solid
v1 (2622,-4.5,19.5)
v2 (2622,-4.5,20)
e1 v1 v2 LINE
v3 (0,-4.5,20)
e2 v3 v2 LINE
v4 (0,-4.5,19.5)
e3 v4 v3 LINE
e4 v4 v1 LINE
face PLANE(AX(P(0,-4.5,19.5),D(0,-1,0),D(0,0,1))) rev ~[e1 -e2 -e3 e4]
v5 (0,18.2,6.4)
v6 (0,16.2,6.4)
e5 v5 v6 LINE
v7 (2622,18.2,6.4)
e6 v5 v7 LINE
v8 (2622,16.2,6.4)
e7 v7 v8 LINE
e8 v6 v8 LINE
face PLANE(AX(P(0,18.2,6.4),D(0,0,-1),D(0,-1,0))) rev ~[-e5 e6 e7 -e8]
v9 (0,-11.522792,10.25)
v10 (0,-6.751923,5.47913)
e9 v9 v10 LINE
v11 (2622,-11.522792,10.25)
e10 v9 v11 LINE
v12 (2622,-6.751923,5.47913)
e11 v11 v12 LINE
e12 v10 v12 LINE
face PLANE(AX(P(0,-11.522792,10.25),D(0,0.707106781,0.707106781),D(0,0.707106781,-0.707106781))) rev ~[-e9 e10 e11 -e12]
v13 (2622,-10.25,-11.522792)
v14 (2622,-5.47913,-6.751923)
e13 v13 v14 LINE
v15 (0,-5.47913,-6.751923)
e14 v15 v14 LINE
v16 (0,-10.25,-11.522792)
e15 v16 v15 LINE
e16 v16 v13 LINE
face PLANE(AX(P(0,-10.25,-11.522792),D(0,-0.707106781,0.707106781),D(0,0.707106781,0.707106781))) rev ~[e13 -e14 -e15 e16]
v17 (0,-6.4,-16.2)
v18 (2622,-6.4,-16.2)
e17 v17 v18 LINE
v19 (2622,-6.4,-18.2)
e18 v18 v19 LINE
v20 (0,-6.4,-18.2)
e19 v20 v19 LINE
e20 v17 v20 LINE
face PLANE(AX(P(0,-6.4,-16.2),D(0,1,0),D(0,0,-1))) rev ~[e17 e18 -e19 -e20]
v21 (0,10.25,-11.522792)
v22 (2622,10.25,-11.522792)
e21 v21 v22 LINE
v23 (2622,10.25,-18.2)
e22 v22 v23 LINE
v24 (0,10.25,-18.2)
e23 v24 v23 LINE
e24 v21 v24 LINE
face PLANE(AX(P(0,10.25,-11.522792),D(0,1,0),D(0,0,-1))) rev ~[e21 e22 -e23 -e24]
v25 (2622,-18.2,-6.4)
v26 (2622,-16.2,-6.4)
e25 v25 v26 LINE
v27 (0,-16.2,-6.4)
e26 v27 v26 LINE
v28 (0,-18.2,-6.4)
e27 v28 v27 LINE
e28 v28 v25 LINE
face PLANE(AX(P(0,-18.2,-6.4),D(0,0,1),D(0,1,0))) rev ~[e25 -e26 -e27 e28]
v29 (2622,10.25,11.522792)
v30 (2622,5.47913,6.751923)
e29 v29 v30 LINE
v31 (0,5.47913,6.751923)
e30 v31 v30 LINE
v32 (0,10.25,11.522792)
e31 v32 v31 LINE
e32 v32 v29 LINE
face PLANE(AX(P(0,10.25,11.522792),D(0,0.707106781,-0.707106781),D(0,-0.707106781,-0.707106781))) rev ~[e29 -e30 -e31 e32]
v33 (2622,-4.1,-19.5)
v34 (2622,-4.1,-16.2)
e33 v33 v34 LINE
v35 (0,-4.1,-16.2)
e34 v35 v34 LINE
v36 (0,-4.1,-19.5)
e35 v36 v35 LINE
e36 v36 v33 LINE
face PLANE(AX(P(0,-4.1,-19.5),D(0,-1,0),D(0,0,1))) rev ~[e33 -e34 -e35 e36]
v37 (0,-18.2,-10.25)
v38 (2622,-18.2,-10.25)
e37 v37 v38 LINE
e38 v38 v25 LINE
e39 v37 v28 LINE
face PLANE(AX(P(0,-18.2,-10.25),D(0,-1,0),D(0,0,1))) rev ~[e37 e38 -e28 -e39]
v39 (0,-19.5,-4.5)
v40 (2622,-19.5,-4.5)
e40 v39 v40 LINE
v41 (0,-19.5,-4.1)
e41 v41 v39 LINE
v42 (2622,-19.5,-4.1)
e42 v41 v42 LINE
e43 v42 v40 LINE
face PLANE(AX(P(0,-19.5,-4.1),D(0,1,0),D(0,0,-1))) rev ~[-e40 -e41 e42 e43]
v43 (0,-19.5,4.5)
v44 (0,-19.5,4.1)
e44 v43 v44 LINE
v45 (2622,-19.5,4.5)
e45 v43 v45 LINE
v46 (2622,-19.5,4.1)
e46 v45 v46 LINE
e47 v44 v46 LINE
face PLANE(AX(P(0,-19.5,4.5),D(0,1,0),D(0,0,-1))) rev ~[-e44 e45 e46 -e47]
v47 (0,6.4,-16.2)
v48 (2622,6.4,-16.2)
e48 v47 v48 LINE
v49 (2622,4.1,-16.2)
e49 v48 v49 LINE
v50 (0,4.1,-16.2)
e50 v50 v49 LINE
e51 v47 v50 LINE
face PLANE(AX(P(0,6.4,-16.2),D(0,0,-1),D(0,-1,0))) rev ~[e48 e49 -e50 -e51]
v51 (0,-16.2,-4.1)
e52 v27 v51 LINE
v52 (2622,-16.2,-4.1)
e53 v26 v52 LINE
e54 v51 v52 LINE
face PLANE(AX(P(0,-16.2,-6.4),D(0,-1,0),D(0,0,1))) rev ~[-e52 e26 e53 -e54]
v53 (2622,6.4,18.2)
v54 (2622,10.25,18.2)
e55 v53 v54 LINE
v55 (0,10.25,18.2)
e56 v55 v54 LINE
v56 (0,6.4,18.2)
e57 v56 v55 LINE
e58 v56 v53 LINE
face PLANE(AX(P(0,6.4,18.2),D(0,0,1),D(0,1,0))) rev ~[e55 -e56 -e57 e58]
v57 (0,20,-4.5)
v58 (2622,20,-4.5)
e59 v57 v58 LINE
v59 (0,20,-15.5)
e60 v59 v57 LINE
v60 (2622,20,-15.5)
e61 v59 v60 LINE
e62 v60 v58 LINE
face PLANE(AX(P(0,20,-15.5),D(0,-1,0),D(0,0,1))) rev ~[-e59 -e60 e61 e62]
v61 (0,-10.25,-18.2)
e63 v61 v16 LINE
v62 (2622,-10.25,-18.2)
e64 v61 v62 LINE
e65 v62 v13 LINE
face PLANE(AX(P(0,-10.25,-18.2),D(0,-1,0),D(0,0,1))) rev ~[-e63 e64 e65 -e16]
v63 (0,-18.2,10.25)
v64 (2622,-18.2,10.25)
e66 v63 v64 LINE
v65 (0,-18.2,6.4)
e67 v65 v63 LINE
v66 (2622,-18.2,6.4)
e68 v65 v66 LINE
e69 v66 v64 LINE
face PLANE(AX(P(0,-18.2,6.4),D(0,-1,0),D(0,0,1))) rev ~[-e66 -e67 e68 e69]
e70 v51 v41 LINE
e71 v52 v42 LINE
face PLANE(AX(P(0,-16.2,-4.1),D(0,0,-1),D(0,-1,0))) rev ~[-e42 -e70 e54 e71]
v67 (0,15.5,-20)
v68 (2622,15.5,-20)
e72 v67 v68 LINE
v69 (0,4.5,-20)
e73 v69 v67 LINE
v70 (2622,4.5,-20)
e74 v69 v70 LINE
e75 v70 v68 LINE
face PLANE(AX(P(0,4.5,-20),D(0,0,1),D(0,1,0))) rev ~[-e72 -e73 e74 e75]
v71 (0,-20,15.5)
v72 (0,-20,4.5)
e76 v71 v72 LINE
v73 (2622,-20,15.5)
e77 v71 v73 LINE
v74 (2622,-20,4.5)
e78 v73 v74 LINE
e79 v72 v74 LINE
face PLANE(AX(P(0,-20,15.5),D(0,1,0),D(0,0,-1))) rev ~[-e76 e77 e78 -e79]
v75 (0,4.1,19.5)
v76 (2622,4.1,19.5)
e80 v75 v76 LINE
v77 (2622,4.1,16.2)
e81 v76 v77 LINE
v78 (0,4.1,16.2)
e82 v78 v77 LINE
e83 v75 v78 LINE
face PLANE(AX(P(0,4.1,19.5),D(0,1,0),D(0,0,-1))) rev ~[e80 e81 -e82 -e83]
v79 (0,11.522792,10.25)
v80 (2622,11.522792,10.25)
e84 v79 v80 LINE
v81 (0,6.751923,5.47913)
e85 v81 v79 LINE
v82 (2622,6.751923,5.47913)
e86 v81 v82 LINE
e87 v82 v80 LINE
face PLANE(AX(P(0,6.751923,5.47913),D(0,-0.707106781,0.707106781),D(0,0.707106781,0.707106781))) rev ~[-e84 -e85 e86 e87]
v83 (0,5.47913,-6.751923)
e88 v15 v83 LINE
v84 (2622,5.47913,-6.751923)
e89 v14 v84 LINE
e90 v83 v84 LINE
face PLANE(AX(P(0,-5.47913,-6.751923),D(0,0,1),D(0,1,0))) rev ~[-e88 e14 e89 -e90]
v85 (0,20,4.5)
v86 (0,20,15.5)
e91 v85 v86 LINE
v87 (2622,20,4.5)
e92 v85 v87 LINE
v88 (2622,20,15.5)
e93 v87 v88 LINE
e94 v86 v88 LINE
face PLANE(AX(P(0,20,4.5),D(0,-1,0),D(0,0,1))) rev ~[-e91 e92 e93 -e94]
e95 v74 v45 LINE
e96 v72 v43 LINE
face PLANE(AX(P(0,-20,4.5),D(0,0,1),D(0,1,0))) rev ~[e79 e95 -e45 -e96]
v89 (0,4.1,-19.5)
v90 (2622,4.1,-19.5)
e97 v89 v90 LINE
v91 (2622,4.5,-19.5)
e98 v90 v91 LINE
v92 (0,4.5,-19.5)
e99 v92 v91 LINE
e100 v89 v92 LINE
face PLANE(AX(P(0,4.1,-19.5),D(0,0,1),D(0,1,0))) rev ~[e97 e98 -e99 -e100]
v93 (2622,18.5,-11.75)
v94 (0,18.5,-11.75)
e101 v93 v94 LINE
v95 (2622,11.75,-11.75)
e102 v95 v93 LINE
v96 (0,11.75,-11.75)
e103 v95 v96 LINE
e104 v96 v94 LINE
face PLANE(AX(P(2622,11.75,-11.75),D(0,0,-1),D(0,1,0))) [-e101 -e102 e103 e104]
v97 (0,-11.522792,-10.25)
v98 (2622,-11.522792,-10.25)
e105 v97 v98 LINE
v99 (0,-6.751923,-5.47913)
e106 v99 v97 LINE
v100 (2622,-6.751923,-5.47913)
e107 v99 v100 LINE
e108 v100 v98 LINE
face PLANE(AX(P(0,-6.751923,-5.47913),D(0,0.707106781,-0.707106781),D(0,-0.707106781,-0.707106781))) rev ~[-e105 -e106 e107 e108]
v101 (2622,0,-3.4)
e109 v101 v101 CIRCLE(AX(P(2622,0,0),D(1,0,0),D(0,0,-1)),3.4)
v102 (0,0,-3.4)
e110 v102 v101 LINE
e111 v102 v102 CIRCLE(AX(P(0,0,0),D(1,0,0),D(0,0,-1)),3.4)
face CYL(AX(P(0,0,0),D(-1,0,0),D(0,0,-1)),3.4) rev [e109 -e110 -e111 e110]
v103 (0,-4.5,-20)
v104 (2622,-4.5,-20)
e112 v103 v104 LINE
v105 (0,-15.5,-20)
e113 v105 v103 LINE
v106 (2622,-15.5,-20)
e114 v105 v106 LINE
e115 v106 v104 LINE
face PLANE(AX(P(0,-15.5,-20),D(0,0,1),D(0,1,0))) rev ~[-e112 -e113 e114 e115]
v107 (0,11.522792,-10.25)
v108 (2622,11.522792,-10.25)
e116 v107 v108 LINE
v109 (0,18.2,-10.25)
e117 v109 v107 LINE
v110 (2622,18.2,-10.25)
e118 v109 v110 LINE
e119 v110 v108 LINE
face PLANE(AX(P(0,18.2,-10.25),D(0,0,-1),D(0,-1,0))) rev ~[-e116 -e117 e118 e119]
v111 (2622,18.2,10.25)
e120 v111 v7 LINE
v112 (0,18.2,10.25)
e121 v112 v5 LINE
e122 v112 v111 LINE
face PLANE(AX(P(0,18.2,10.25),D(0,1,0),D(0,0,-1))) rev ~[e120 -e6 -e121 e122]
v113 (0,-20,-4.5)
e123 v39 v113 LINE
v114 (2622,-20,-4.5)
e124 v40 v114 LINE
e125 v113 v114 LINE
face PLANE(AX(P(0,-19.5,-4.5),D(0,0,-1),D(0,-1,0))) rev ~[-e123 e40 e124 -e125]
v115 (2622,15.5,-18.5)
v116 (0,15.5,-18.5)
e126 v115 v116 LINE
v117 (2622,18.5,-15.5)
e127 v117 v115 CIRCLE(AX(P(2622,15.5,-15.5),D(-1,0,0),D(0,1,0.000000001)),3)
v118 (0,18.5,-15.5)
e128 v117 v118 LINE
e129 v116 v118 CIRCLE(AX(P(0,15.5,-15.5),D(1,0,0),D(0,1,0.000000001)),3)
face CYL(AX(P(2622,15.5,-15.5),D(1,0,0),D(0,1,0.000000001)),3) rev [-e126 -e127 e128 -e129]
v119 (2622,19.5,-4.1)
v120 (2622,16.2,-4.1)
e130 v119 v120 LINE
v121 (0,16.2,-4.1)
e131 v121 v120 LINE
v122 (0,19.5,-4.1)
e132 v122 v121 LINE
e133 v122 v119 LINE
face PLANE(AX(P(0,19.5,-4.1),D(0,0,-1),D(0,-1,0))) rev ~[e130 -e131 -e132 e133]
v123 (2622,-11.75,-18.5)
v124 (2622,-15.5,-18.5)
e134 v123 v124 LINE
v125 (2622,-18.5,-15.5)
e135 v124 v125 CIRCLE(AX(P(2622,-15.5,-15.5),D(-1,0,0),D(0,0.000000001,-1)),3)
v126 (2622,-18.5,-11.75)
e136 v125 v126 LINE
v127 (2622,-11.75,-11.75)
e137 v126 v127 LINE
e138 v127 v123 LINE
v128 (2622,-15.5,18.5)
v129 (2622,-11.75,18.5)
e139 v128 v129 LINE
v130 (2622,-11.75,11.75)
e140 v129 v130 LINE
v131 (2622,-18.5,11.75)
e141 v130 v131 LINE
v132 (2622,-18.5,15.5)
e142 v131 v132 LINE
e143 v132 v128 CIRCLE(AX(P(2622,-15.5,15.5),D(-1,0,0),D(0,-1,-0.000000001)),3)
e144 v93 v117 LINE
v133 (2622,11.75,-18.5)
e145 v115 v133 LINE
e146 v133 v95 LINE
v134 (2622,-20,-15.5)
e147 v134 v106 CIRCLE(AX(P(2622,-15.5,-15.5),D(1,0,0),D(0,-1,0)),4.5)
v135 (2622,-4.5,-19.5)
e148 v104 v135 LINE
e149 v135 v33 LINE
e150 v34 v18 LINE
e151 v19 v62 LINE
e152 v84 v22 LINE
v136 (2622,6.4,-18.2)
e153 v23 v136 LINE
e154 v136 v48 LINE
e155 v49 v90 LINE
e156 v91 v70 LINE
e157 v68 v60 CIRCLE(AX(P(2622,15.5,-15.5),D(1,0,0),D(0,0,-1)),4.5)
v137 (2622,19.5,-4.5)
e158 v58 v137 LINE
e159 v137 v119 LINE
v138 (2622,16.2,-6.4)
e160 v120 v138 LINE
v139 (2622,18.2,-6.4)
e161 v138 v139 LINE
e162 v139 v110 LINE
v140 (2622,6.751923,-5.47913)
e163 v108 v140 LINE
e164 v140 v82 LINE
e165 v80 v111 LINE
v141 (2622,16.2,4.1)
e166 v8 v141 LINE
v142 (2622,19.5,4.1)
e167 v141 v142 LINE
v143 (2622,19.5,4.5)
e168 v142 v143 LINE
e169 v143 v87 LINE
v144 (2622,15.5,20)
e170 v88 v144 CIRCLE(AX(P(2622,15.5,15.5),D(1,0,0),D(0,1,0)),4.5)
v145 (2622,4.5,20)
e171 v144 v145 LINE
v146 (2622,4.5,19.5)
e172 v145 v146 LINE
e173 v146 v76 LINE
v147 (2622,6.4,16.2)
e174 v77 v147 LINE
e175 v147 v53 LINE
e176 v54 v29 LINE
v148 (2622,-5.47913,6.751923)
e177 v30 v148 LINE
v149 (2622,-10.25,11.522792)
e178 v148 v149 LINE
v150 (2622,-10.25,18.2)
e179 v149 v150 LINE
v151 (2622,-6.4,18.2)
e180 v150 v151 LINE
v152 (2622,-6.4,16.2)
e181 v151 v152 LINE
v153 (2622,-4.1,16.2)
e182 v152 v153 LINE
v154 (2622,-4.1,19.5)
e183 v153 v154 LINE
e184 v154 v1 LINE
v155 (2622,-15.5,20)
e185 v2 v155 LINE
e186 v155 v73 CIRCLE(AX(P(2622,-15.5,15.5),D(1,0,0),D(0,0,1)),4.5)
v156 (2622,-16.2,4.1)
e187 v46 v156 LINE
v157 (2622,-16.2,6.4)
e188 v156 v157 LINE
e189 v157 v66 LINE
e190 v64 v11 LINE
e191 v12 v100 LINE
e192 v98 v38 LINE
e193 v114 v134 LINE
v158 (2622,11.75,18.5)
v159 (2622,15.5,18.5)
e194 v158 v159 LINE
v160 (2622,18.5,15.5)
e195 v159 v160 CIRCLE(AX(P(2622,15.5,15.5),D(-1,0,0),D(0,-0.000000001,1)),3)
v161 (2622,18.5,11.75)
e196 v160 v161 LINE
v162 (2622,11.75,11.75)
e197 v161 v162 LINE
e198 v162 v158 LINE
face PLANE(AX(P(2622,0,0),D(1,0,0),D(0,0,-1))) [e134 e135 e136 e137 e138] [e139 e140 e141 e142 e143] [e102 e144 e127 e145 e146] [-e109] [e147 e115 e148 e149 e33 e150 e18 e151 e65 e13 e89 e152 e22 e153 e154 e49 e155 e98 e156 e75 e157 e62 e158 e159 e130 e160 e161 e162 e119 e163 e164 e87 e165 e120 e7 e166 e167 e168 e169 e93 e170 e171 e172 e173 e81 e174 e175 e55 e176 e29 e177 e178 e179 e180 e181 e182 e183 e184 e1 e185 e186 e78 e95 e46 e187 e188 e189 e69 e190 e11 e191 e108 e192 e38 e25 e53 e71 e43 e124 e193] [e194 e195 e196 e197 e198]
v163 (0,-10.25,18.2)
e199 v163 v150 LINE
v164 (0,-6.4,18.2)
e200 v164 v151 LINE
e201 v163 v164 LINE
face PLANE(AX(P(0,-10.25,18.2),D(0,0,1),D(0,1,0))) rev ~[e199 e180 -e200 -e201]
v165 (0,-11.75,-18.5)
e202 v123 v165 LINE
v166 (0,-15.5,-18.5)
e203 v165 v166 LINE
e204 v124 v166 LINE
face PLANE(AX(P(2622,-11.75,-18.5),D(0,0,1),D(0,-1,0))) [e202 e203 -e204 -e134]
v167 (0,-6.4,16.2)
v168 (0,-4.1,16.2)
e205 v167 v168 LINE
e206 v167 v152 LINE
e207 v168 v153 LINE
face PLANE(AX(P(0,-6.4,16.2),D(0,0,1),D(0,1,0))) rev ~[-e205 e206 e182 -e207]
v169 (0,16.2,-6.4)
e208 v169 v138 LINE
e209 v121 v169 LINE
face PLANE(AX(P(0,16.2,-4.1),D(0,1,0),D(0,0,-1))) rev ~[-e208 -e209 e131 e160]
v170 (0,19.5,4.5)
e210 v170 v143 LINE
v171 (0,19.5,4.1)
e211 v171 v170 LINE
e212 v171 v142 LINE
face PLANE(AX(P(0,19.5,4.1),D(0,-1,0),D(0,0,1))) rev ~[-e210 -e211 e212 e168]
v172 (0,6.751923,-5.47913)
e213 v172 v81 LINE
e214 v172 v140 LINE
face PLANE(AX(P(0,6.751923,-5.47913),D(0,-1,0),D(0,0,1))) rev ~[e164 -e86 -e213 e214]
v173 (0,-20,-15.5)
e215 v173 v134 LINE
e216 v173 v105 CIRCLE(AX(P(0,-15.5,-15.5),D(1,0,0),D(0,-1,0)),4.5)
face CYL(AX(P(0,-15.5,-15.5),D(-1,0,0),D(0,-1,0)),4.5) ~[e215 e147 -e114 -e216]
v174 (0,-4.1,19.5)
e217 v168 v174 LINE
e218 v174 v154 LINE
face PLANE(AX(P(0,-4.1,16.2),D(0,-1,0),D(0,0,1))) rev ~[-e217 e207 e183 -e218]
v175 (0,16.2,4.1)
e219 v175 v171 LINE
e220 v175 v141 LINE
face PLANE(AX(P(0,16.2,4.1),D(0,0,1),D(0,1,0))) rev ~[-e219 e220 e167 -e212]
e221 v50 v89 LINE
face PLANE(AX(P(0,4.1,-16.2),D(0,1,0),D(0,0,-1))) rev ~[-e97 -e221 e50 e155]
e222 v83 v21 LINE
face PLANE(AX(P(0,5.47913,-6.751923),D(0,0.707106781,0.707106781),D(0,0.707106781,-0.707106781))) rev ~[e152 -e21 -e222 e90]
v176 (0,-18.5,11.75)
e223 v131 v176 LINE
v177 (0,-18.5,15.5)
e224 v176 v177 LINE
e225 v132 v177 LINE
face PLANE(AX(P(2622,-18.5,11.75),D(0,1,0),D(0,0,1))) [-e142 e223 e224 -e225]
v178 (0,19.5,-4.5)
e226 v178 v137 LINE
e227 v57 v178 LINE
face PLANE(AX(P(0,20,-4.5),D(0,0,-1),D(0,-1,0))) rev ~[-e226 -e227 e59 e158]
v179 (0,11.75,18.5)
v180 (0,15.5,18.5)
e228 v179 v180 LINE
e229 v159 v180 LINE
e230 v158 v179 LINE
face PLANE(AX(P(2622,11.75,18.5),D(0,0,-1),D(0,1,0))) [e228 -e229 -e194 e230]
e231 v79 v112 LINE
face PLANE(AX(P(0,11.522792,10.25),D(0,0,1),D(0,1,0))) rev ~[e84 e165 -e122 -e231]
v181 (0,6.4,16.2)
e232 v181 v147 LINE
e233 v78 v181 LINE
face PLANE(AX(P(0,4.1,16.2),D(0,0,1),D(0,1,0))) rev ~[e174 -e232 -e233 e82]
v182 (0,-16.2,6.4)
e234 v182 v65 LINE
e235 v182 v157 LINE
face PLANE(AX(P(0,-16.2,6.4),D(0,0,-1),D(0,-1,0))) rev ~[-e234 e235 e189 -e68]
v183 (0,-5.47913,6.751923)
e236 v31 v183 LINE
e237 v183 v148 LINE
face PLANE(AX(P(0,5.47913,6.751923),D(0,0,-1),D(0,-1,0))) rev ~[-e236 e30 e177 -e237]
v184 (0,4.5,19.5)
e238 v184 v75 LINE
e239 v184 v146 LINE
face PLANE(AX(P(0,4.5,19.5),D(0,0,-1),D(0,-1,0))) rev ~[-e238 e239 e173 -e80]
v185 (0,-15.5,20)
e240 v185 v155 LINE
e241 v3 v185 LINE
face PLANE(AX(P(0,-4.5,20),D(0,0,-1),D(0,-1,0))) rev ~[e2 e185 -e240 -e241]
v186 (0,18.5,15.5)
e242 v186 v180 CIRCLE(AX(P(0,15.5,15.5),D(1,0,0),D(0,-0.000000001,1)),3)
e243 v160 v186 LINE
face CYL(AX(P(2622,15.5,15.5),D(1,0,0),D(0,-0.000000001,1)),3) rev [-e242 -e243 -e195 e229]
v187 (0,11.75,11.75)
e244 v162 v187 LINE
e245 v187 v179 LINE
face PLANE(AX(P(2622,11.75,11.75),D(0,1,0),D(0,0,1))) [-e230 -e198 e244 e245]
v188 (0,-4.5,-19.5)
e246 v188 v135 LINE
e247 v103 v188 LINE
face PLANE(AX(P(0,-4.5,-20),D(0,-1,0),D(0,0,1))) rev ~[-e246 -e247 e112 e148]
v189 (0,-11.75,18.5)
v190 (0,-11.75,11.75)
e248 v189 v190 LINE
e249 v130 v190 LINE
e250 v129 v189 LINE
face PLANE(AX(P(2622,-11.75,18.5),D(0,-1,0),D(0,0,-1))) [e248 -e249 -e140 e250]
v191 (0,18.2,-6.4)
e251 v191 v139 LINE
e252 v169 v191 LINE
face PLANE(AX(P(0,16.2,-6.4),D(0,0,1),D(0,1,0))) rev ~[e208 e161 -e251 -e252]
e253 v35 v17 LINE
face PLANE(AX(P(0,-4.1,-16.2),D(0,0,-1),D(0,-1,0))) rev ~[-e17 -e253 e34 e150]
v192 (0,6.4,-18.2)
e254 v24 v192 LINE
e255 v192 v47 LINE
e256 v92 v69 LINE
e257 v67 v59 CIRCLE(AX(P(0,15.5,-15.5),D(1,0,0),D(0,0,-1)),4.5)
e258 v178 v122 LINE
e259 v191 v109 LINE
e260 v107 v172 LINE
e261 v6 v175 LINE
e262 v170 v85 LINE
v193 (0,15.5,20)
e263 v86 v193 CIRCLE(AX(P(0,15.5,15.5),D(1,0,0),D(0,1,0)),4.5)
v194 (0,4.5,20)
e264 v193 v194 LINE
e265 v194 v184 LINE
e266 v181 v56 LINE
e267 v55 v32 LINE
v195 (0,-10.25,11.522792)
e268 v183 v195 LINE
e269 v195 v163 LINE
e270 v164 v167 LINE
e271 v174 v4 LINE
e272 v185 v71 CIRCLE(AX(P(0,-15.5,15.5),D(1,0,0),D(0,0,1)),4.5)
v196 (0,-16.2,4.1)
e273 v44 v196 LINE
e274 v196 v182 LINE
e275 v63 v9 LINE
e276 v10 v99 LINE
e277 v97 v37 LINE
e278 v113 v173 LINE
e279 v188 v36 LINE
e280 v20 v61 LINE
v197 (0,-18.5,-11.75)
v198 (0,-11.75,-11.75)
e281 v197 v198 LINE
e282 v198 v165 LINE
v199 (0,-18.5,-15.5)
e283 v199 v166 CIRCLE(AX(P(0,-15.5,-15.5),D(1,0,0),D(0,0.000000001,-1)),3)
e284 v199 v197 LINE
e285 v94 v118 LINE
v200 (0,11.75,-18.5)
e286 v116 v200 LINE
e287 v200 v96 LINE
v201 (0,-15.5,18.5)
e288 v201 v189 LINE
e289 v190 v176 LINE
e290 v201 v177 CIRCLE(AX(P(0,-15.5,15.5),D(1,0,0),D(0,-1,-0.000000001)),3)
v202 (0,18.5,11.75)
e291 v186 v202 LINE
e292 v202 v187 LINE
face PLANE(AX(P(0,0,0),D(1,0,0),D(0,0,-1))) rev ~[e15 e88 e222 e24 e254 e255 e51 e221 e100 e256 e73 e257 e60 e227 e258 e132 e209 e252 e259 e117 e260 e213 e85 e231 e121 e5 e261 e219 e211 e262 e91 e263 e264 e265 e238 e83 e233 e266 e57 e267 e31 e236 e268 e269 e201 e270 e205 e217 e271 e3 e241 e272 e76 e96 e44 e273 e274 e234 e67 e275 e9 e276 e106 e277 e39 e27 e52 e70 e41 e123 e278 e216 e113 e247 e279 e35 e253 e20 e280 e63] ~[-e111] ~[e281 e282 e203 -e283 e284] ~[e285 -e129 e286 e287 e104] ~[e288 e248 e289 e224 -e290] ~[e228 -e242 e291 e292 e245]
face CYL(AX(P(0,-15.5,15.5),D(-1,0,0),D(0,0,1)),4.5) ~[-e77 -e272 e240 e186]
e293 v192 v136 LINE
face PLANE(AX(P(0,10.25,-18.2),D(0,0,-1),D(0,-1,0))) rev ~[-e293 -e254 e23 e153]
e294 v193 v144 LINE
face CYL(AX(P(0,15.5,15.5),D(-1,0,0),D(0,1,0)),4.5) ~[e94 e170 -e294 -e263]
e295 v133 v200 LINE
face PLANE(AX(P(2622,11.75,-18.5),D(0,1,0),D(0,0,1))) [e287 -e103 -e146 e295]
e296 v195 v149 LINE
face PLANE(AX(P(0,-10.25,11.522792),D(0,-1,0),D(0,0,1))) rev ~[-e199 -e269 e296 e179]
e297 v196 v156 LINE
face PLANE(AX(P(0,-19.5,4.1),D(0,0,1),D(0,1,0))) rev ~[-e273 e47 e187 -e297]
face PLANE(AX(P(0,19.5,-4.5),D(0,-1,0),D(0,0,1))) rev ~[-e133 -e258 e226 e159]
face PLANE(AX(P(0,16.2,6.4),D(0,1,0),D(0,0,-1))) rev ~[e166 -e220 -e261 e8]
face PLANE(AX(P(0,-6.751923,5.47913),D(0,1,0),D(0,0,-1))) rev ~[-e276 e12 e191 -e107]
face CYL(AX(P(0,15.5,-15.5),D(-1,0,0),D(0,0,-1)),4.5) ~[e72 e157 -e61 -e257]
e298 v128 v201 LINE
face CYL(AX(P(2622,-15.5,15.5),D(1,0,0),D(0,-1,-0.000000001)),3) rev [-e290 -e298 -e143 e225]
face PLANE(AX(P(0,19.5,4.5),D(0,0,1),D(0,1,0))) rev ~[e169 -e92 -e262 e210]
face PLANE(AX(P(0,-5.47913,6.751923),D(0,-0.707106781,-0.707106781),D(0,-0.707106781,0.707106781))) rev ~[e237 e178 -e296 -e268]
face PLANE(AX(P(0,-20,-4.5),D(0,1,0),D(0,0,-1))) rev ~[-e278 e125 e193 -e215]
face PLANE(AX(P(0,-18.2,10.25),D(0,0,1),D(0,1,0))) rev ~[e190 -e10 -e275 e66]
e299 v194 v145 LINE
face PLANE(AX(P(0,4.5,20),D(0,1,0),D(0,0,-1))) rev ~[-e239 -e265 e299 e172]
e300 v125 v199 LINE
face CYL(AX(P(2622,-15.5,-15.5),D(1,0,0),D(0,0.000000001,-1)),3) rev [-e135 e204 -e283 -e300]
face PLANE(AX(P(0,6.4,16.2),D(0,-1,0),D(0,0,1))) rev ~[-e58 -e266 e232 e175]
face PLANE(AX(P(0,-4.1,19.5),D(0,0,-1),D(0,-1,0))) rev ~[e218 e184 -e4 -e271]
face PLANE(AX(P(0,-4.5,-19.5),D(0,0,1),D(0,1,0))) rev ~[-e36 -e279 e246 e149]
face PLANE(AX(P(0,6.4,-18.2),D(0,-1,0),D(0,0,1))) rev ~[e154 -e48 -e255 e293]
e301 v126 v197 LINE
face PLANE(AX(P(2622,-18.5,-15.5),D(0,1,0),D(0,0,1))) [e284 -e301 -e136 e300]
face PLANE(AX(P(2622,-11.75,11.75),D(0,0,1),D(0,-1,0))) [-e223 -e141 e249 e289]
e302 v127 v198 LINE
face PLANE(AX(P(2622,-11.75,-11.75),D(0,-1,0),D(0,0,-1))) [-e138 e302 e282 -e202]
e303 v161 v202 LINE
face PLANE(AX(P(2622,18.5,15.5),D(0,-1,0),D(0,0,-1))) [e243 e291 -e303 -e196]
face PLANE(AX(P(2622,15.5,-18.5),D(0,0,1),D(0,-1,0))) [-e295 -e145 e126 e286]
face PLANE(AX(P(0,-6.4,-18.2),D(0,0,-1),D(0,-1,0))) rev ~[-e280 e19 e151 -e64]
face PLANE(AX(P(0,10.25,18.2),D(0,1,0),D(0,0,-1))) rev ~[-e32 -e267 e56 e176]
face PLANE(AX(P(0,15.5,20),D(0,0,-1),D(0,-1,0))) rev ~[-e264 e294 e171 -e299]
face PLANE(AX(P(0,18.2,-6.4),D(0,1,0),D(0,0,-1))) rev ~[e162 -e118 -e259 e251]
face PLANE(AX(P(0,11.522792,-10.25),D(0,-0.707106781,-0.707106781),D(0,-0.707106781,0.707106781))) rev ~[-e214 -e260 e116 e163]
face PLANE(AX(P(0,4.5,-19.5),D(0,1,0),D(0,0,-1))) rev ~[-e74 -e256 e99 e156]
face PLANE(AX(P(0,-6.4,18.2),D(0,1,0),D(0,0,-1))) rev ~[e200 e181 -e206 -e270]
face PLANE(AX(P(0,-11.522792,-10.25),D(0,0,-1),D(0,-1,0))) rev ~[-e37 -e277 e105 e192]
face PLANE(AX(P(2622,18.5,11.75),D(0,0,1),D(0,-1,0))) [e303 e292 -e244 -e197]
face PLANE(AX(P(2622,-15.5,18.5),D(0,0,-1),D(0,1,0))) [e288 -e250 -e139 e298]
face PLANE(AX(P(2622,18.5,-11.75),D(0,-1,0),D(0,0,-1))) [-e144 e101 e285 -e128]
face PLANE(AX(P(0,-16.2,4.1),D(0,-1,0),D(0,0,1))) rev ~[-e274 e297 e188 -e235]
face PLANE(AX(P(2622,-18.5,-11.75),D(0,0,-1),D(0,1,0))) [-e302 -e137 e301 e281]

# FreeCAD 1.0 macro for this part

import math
import FreeCAD as App
import Part
import Sketcher

V = App.Vector

doc = App.newDocument("Part")
body = doc.addObject("PartDesign::Body", "Body")

# Sketch on YZ plane
sketch1 = body.newObject("Sketcher::SketchObject", "Sketch")
sketch1.AttachmentSupport = (doc.getObject("YZ_Plane"), [""])
sketch1.MapMode = "FlatFace"
sketch1.addGeometry([
    Part.LineSegment(V(-20, 15.5, 0), V(-20, 4.5, 0)),  # 0
    Part.LineSegment(V(-20, 4.5, 0), V(-19.5, 4.5, 0)),  # 1
    Part.LineSegment(V(-19.5, 4.5, 0), V(-19.5, 4.1, 0)),  # 2
    Part.LineSegment(V(-19.5, 4.1, 0), V(-16.2, 4.1, 0)),  # 3
    Part.LineSegment(V(-16.2, 4.1, 0), V(-16.2, 6.4, 0)),  # 4
    Part.LineSegment(V(-16.2, 6.4, 0), V(-18.2, 6.4, 0)),  # 5
    Part.LineSegment(V(-18.2, 6.4, 0), V(-18.2, 10.25, 0)),  # 6
    Part.LineSegment(V(-18.2, 10.25, 0), V(-11.52, 10.25, 0)),  # 7
    Part.LineSegment(V(-11.52, 10.25, 0), V(-6.75, 5.48, 0)),  # 8
    Part.LineSegment(V(-6.75, 5.48, 0), V(-6.75, -5.48, 0)),  # 9
    Part.LineSegment(V(-6.75, -5.48, 0), V(-11.52, -10.25, 0)),  # 10
    Part.LineSegment(V(-11.52, -10.25, 0), V(-18.2, -10.25, 0)),  # 11
    Part.LineSegment(V(-18.2, -10.25, 0), V(-18.2, -6.4, 0)),  # 12
    Part.LineSegment(V(-18.2, -6.4, 0), V(-16.2, -6.4, 0)),  # 13
    Part.LineSegment(V(-16.2, -6.4, 0), V(-16.2, -4.1, 0)),  # 14
    Part.LineSegment(V(-16.2, -4.1, 0), V(-19.5, -4.1, 0)),  # 15
    Part.LineSegment(V(-19.5, -4.1, 0), V(-19.5, -4.5, 0)),  # 16
    Part.LineSegment(V(-19.5, -4.5, 0), V(-20, -4.5, 0)),  # 17
    Part.LineSegment(V(-20, -4.5, 0), V(-20, -15.5, 0)),  # 18
    Part.ArcOfCircle(Part.Circle(V(-15.5, -15.5, 0), V(0, 0, 1), 4.5), math.radians(-180), math.radians(-90)),  # 19
    Part.LineSegment(V(-15.5, -20, 0), V(-4.5, -20, 0)),  # 20
    Part.LineSegment(V(-4.5, -20, 0), V(-4.5, -19.5, 0)),  # 21
    Part.LineSegment(V(-4.5, -19.5, 0), V(-4.1, -19.5, 0)),  # 22
    Part.LineSegment(V(-4.1, -19.5, 0), V(-4.1, -16.2, 0)),  # 23
    Part.LineSegment(V(-4.1, -16.2, 0), V(-6.4, -16.2, 0)),  # 24
    Part.LineSegment(V(-6.4, -16.2, 0), V(-6.4, -18.2, 0)),  # 25
    Part.LineSegment(V(-6.4, -18.2, 0), V(-10.25, -18.2, 0)),  # 26
    Part.LineSegment(V(-10.25, -18.2, 0), V(-10.25, -11.52, 0)),  # 27
    Part.LineSegment(V(-10.25, -11.52, 0), V(-5.48, -6.75, 0)),  # 28
    Part.LineSegment(V(-5.48, -6.75, 0), V(5.48, -6.75, 0)),  # 29
    Part.LineSegment(V(5.48, -6.75, 0), V(10.25, -11.52, 0)),  # 30
    Part.LineSegment(V(10.25, -11.52, 0), V(10.25, -18.2, 0)),  # 31
    Part.LineSegment(V(10.25, -18.2, 0), V(6.4, -18.2, 0)),  # 32
    Part.LineSegment(V(6.4, -18.2, 0), V(6.4, -16.2, 0)),  # 33
    Part.LineSegment(V(6.4, -16.2, 0), V(4.1, -16.2, 0)),  # 34
    Part.LineSegment(V(4.1, -16.2, 0), V(4.1, -19.5, 0)),  # 35
    Part.LineSegment(V(4.1, -19.5, 0), V(4.5, -19.5, 0)),  # 36
    Part.LineSegment(V(4.5, -19.5, 0), V(4.5, -20, 0)),  # 37
    Part.LineSegment(V(4.5, -20, 0), V(15.5, -20, 0)),  # 38
    Part.ArcOfCircle(Part.Circle(V(15.5, -15.5, 0), V(0, 0, 1), 4.5), math.radians(-90), math.radians(0)),  # 39
    Part.LineSegment(V(20, -15.5, 0), V(20, -4.5, 0)),  # 40
    Part.LineSegment(V(20, -4.5, 0), V(19.5, -4.5, 0)),  # 41
    Part.LineSegment(V(19.5, -4.5, 0), V(19.5, -4.1, 0)),  # 42
    Part.LineSegment(V(19.5, -4.1, 0), V(16.2, -4.1, 0)),  # 43
    Part.LineSegment(V(16.2, -4.1, 0), V(16.2, -6.4, 0)),  # 44
    Part.LineSegment(V(16.2, -6.4, 0), V(18.2, -6.4, 0)),  # 45
    Part.LineSegment(V(18.2, -6.4, 0), V(18.2, -10.25, 0)),  # 46
    Part.LineSegment(V(18.2, -10.25, 0), V(11.52, -10.25, 0)),  # 47
    Part.LineSegment(V(11.52, -10.25, 0), V(6.75, -5.48, 0)),  # 48
    Part.LineSegment(V(6.75, -5.48, 0), V(6.75, 5.48, 0)),  # 49
    Part.LineSegment(V(6.75, 5.48, 0), V(11.52, 10.25, 0)),  # 50
    Part.LineSegment(V(11.52, 10.25, 0), V(18.2, 10.25, 0)),  # 51
    Part.LineSegment(V(18.2, 10.25, 0), V(18.2, 6.4, 0)),  # 52
    Part.LineSegment(V(18.2, 6.4, 0), V(16.2, 6.4, 0)),  # 53
    Part.LineSegment(V(16.2, 6.4, 0), V(16.2, 4.1, 0)),  # 54
    Part.LineSegment(V(16.2, 4.1, 0), V(19.5, 4.1, 0)),  # 55
    Part.LineSegment(V(19.5, 4.1, 0), V(19.5, 4.5, 0)),  # 56
    Part.LineSegment(V(19.5, 4.5, 0), V(20, 4.5, 0)),  # 57
    Part.LineSegment(V(20, 4.5, 0), V(20, 15.5, 0)),  # 58
    Part.ArcOfCircle(Part.Circle(V(15.5, 15.5, 0), V(0, 0, 1), 4.5), math.radians(0), math.radians(90)),  # 59
    Part.LineSegment(V(15.5, 20, 0), V(4.5, 20, 0)),  # 60
    Part.LineSegment(V(4.5, 20, 0), V(4.5, 19.5, 0)),  # 61
    Part.LineSegment(V(4.5, 19.5, 0), V(4.1, 19.5, 0)),  # 62
    Part.LineSegment(V(4.1, 19.5, 0), V(4.1, 16.2, 0)),  # 63
    Part.LineSegment(V(4.1, 16.2, 0), V(6.4, 16.2, 0)),  # 64
    Part.LineSegment(V(6.4, 16.2, 0), V(6.4, 18.2, 0)),  # 65
    Part.LineSegment(V(6.4, 18.2, 0), V(10.25, 18.2, 0)),  # 66
    Part.LineSegment(V(10.25, 18.2, 0), V(10.25, 11.52, 0)),  # 67
    Part.LineSegment(V(10.25, 11.52, 0), V(5.48, 6.75, 0)),  # 68
    Part.LineSegment(V(5.48, 6.75, 0), V(-5.48, 6.75, 0)),  # 69
    Part.LineSegment(V(-5.48, 6.75, 0), V(-10.25, 11.52, 0)),  # 70
    Part.LineSegment(V(-10.25, 11.52, 0), V(-10.25, 18.2, 0)),  # 71
    Part.LineSegment(V(-10.25, 18.2, 0), V(-6.4, 18.2, 0)),  # 72
    Part.LineSegment(V(-6.4, 18.2, 0), V(-6.4, 16.2, 0)),  # 73
    Part.LineSegment(V(-6.4, 16.2, 0), V(-4.1, 16.2, 0)),  # 74
    Part.LineSegment(V(-4.1, 16.2, 0), V(-4.1, 19.5, 0)),  # 75
    Part.LineSegment(V(-4.1, 19.5, 0), V(-4.5, 19.5, 0)),  # 76
    Part.LineSegment(V(-4.5, 19.5, 0), V(-4.5, 20, 0)),  # 77
    Part.LineSegment(V(-4.5, 20, 0), V(-15.5, 20, 0)),  # 78
    Part.ArcOfCircle(Part.Circle(V(-15.5, 15.5, 0), V(0, 0, 1), 4.5), math.radians(90), math.radians(180)),  # 79
    Part.Circle(V(0, 0, 0), V(0, 0, 1), 3.4),  # 80
], False)
sketch1.addConstraint([
    Sketcher.Constraint("Coincident", 0, 2, 1, 1),
    Sketcher.Constraint("Coincident", 1, 2, 2, 1),
    Sketcher.Constraint("Coincident", 2, 2, 3, 1),
    Sketcher.Constraint("Coincident", 3, 2, 4, 1),
    Sketcher.Constraint("Coincident", 4, 2, 5, 1),
    Sketcher.Constraint("Coincident", 5, 2, 6, 1),
    Sketcher.Constraint("Coincident", 6, 2, 7, 1),
    Sketcher.Constraint("Coincident", 7, 2, 8, 1),
    Sketcher.Constraint("Coincident", 8, 2, 9, 1),
    Sketcher.Constraint("Coincident", 9, 2, 10, 1),
    Sketcher.Constraint("Coincident", 10, 2, 11, 1),
    Sketcher.Constraint("Coincident", 11, 2, 12, 1),
    Sketcher.Constraint("Coincident", 12, 2, 13, 1),
    Sketcher.Constraint("Coincident", 13, 2, 14, 1),
    Sketcher.Constraint("Coincident", 14, 2, 15, 1),
    Sketcher.Constraint("Coincident", 15, 2, 16, 1),
    Sketcher.Constraint("Coincident", 16, 2, 17, 1),
    Sketcher.Constraint("Coincident", 17, 2, 18, 1),
    Sketcher.Constraint("Tangent", 18, 2, 19, 1),
    Sketcher.Constraint("Tangent", 19, 2, 20, 1),
    Sketcher.Constraint("Coincident", 20, 2, 21, 1),
    Sketcher.Constraint("Coincident", 21, 2, 22, 1),
    Sketcher.Constraint("Coincident", 22, 2, 23, 1),
    Sketcher.Constraint("Coincident", 23, 2, 24, 1),
    Sketcher.Constraint("Coincident", 24, 2, 25, 1),
    Sketcher.Constraint("Coincident", 25, 2, 26, 1),
    Sketcher.Constraint("Coincident", 26, 2, 27, 1),
    Sketcher.Constraint("Coincident", 27, 2, 28, 1),
    Sketcher.Constraint("Coincident", 28, 2, 29, 1),
    Sketcher.Constraint("Coincident", 29, 2, 30, 1),
    Sketcher.Constraint("Coincident", 30, 2, 31, 1),
    Sketcher.Constraint("Coincident", 31, 2, 32, 1),
    Sketcher.Constraint("Coincident", 32, 2, 33, 1),
    Sketcher.Constraint("Coincident", 33, 2, 34, 1),
    Sketcher.Constraint("Coincident", 34, 2, 35, 1),
    Sketcher.Constraint("Coincident", 35, 2, 36, 1),
    Sketcher.Constraint("Coincident", 36, 2, 37, 1),
    Sketcher.Constraint("Coincident", 37, 2, 38, 1),
    Sketcher.Constraint("Tangent", 38, 2, 39, 1),
    Sketcher.Constraint("Tangent", 39, 2, 40, 1),
    Sketcher.Constraint("Coincident", 40, 2, 41, 1),
    Sketcher.Constraint("Coincident", 41, 2, 42, 1),
    Sketcher.Constraint("Coincident", 42, 2, 43, 1),
    Sketcher.Constraint("Coincident", 43, 2, 44, 1),
    Sketcher.Constraint("Coincident", 44, 2, 45, 1),
    Sketcher.Constraint("Coincident", 45, 2, 46, 1),
    Sketcher.Constraint("Coincident", 46, 2, 47, 1),
    Sketcher.Constraint("Coincident", 47, 2, 48, 1),
    Sketcher.Constraint("Coincident", 48, 2, 49, 1),
    Sketcher.Constraint("Coincident", 49, 2, 50, 1),
    Sketcher.Constraint("Coincident", 50, 2, 51, 1),
    Sketcher.Constraint("Coincident", 51, 2, 52, 1),
    Sketcher.Constraint("Coincident", 52, 2, 53, 1),
    Sketcher.Constraint("Coincident", 53, 2, 54, 1),
    Sketcher.Constraint("Coincident", 54, 2, 55, 1),
    Sketcher.Constraint("Coincident", 55, 2, 56, 1),
    Sketcher.Constraint("Coincident", 56, 2, 57, 1),
    Sketcher.Constraint("Coincident", 57, 2, 58, 1),
    Sketcher.Constraint("Tangent", 58, 2, 59, 1),
    Sketcher.Constraint("Tangent", 59, 2, 60, 1),
    Sketcher.Constraint("Coincident", 60, 2, 61, 1),
    Sketcher.Constraint("Coincident", 61, 2, 62, 1),
    Sketcher.Constraint("Coincident", 62, 2, 63, 1),
    Sketcher.Constraint("Coincident", 63, 2, 64, 1),
    Sketcher.Constraint("Coincident", 64, 2, 65, 1),
    Sketcher.Constraint("Coincident", 65, 2, 66, 1),
    Sketcher.Constraint("Coincident", 66, 2, 67, 1),
    Sketcher.Constraint("Coincident", 67, 2, 68, 1),
    Sketcher.Constraint("Coincident", 68, 2, 69, 1),
    Sketcher.Constraint("Coincident", 69, 2, 70, 1),
    Sketcher.Constraint("Coincident", 70, 2, 71, 1),
    Sketcher.Constraint("Coincident", 71, 2, 72, 1),
    Sketcher.Constraint("Coincident", 72, 2, 73, 1),
    Sketcher.Constraint("Coincident", 73, 2, 74, 1),
    Sketcher.Constraint("Coincident", 74, 2, 75, 1),
    Sketcher.Constraint("Coincident", 75, 2, 76, 1),
    Sketcher.Constraint("Coincident", 76, 2, 77, 1),
    Sketcher.Constraint("Coincident", 77, 2, 78, 1),
    Sketcher.Constraint("Tangent", 78, 2, 79, 1),
    Sketcher.Constraint("Tangent", 79, 2, 0, 1),
    Sketcher.Constraint("Vertical", 0),
    Sketcher.Constraint("Horizontal", 1),
    Sketcher.Constraint("Vertical", 2),
    Sketcher.Constraint("Horizontal", 3),
    Sketcher.Constraint("Vertical", 4),
    Sketcher.Constraint("Horizontal", 5),
    Sketcher.Constraint("Vertical", 6),
    Sketcher.Constraint("Horizontal", 7),
    Sketcher.Constraint("Vertical", 9),
    Sketcher.Constraint("Horizontal", 11),
    Sketcher.Constraint("Vertical", 12),
    Sketcher.Constraint("Horizontal", 13),
    Sketcher.Constraint("Vertical", 14),
    Sketcher.Constraint("Horizontal", 15),
    Sketcher.Constraint("Vertical", 16),
    Sketcher.Constraint("Horizontal", 17),
    Sketcher.Constraint("Vertical", 18),
    Sketcher.Constraint("Horizontal", 20),
    Sketcher.Constraint("Vertical", 21),
    Sketcher.Constraint("Horizontal", 22),
    Sketcher.Constraint("Vertical", 23),
    Sketcher.Constraint("Horizontal", 24),
    Sketcher.Constraint("Vertical", 25),
    Sketcher.Constraint("Horizontal", 26),
    Sketcher.Constraint("Vertical", 27),
    Sketcher.Constraint("Horizontal", 29),
    Sketcher.Constraint("Vertical", 31),
    Sketcher.Constraint("Horizontal", 32),
    Sketcher.Constraint("Vertical", 33),
    Sketcher.Constraint("Horizontal", 34),
    Sketcher.Constraint("Vertical", 35),
    Sketcher.Constraint("Horizontal", 36),
    Sketcher.Constraint("Vertical", 37),
    Sketcher.Constraint("Horizontal", 38),
    Sketcher.Constraint("Vertical", 40),
    Sketcher.Constraint("Horizontal", 41),
    Sketcher.Constraint("Vertical", 42),
    Sketcher.Constraint("Horizontal", 43),
    Sketcher.Constraint("Vertical", 44),
    Sketcher.Constraint("Horizontal", 45),
    Sketcher.Constraint("Vertical", 46),
    Sketcher.Constraint("Horizontal", 47),
    Sketcher.Constraint("Vertical", 49),
    Sketcher.Constraint("Horizontal", 51),
    Sketcher.Constraint("Vertical", 52),
    Sketcher.Constraint("Horizontal", 53),
    Sketcher.Constraint("Vertical", 54),
    Sketcher.Constraint("Horizontal", 55),
    Sketcher.Constraint("Vertical", 56),
    Sketcher.Constraint("Horizontal", 57),
    Sketcher.Constraint("Vertical", 58),
    Sketcher.Constraint("Horizontal", 60),
    Sketcher.Constraint("Vertical", 61),
    Sketcher.Constraint("Horizontal", 62),
    Sketcher.Constraint("Vertical", 63),
    Sketcher.Constraint("Horizontal", 64),
    Sketcher.Constraint("Vertical", 65),
    Sketcher.Constraint("Horizontal", 66),
    Sketcher.Constraint("Vertical", 67),
    Sketcher.Constraint("Horizontal", 69),
    Sketcher.Constraint("Vertical", 71),
    Sketcher.Constraint("Horizontal", 72),
    Sketcher.Constraint("Vertical", 73),
    Sketcher.Constraint("Horizontal", 74),
    Sketcher.Constraint("Vertical", 75),
    Sketcher.Constraint("Horizontal", 76),
    Sketcher.Constraint("Vertical", 77),
    Sketcher.Constraint("Horizontal", 78),
    Sketcher.Constraint("Coincident", 80, 3, -1, 1),
    Sketcher.Constraint("Equal", 19, 39),
    Sketcher.Constraint("Equal", 39, 59),
    Sketcher.Constraint("Equal", 59, 79),
    Sketcher.Constraint("Symmetric", 19, 3, 59, 3, -1, 1),
    Sketcher.Constraint("Symmetric", 39, 3, 79, 3, -1, 1),
    Sketcher.Constraint("Symmetric", 1, 2, 41, 2, -1, 1),
    Sketcher.Constraint("Symmetric", 3, 2, 43, 2, -1, 1),
    Sketcher.Constraint("Symmetric", 5, 2, 45, 2, -1, 1),
    Sketcher.Constraint("Symmetric", 7, 2, 47, 2, -1, 1),
    Sketcher.Constraint("Symmetric", 8, 2, 48, 2, -1, 1),
    Sketcher.Constraint("Symmetric", 10, 2, 50, 2, -1, 1),
    Sketcher.Constraint("Symmetric", 12, 2, 52, 2, -1, 1),
    Sketcher.Constraint("Symmetric", 14, 2, 54, 2, -1, 1),
    Sketcher.Constraint("Symmetric", 16, 2, 56, 2, -1, 1),
    Sketcher.Constraint("Symmetric", 21, 2, 61, 2, -1, 1),
    Sketcher.Constraint("Symmetric", 23, 2, 63, 2, -1, 1),
    Sketcher.Constraint("Symmetric", 25, 2, 65, 2, -1, 1),
    Sketcher.Constraint("Symmetric", 27, 2, 67, 2, -1, 1),
    Sketcher.Constraint("Symmetric", 28, 2, 68, 2, -1, 1),
    Sketcher.Constraint("Symmetric", 30, 2, 70, 2, -1, 1),
    Sketcher.Constraint("Symmetric", 32, 2, 72, 2, -1, 1),
    Sketcher.Constraint("Symmetric", 34, 2, 74, 2, -1, 1),
    Sketcher.Constraint("Symmetric", 36, 2, 76, 2, -1, 1),
    Sketcher.Constraint("Symmetric", 19, 3, 39, 3, -2),
    Sketcher.Constraint("Symmetric", 27, 2, 30, 2, -2),
    Sketcher.Constraint("Symmetric", 25, 2, 32, 2, -2),
    Sketcher.Constraint("Symmetric", 23, 2, 34, 2, -2),
    Sketcher.Constraint("Symmetric", 21, 2, 36, 2, -2),
    Sketcher.Constraint("Symmetric", 16, 2, 41, 2, -2),
    Sketcher.Constraint("Symmetric", 14, 2, 43, 2, -2),
    Sketcher.Constraint("Symmetric", 12, 2, 45, 2, -2),
    Sketcher.Constraint("Symmetric", 10, 2, 47, 2, -2),
    Sketcher.Constraint("Perpendicular", 8, 10),
    Sketcher.Constraint("Parallel", 10, 28),
    Sketcher.Constraint("Perpendicular", 28, 30),
    Sketcher.Constraint("Perpendicular", 48, 50),
    Sketcher.Constraint("Perpendicular", 68, 70),
    Sketcher.Constraint("Horizontal", 9, 2, 48, 2),
    Sketcher.Constraint("Equal", 78, 0),
    Sketcher.Constraint("Equal", 76, 2),
    Sketcher.Constraint("Equal", 74, 4),
    Sketcher.Constraint("Equal", 72, 6),
    Sketcher.Constraint("Equal", 69, 9),
    Sketcher.Constraint("Equal", 57, 21),
    Sketcher.Constraint("Equal", 55, 23),
    Sketcher.Constraint("Equal", 53, 25),
    Sketcher.Constraint("Equal", 51, 27),
    Sketcher.Constraint("Equal", 10, 28),
    Sketcher.Constraint("Diameter", 80, 6.8),
    Sketcher.Constraint("Radius", 19, 4.5),
    Sketcher.Constraint("DistanceX", 5, 2, 5, 1, 2.0),
    Sketcher.Constraint("DistanceX", 20, 1, 20, 2, 11.0),
    Sketcher.Constraint("DistanceX", 1, 1, 1, 2, 0.5),
    Sketcher.Constraint("DistanceX", 3, 1, 3, 2, 3.3),
    Sketcher.Constraint("DistanceX", 22, 1, 22, 2, 0.4),
    Sketcher.Constraint("DistanceX", 24, 2, 24, 1, 2.3),
    Sketcher.Constraint("DistanceX", 0, 2, -1, 1, 20.0),
    Sketcher.Constraint("DistanceX", 26, 2, 26, 1, 3.85),
    Sketcher.Constraint("DistanceX", 29, 1, 29, 2, 10.958261),
    Sketcher.Constraint("DistanceX", 7, 1, 7, 2, 6.677208),
])
pad1 = body.newObject("PartDesign::Pad", "Pad")
pad1.Profile = sketch1
pad1.Length = 2622

# Sketch on YZ plane
sketch2 = body.newObject("Sketcher::SketchObject", "Sketch001")
sketch2.AttachmentSupport = (doc.getObject("YZ_Plane"), [""])
sketch2.MapMode = "FlatFace"
sketch2.AttachmentOffset = App.Placement(V(0, 0, 2622), App.Rotation())
sketch2.addGeometry([
    Part.LineSegment(V(11.8, 11.8, 0), V(11.8, 18.5, 0)),  # 0
    Part.LineSegment(V(11.8, 18.5, 0), V(15.5, 18.5, 0)),  # 1
    Part.ArcOfCircle(Part.Circle(V(15.5, 15.5, 0), V(0, 0, 1), 3), math.radians(0), math.radians(90)),  # 2
    Part.LineSegment(V(18.5, 15.5, 0), V(18.5, 11.8, 0)),  # 3
    Part.LineSegment(V(18.5, 11.8, 0), V(11.8, 11.8, 0)),  # 4
    Part.LineSegment(V(-11.8, 11.8, 0), V(-18.5, 11.8, 0)),  # 5
    Part.LineSegment(V(-18.5, 11.8, 0), V(-18.5, 15.5, 0)),  # 6
    Part.ArcOfCircle(Part.Circle(V(-15.5, 15.5, 0), V(0, 0, 1), 3), math.radians(90), math.radians(180)),  # 7
    Part.LineSegment(V(-15.5, 18.5, 0), V(-11.8, 18.5, 0)),  # 8
    Part.LineSegment(V(-11.8, 18.5, 0), V(-11.8, 11.8, 0)),  # 9
    Part.LineSegment(V(-11.8, -11.8, 0), V(-11.8, -18.5, 0)),  # 10
    Part.LineSegment(V(-11.8, -18.5, 0), V(-15.5, -18.5, 0)),  # 11
    Part.ArcOfCircle(Part.Circle(V(-15.5, -15.5, 0), V(0, 0, 1), 3), math.radians(180), math.radians(270)),  # 12
    Part.LineSegment(V(-18.5, -15.5, 0), V(-18.5, -11.8, 0)),  # 13
    Part.LineSegment(V(-18.5, -11.8, 0), V(-11.8, -11.8, 0)),  # 14
    Part.LineSegment(V(11.8, -11.8, 0), V(18.5, -11.8, 0)),  # 15
    Part.LineSegment(V(18.5, -11.8, 0), V(18.5, -15.5, 0)),  # 16
    Part.ArcOfCircle(Part.Circle(V(15.5, -15.5, 0), V(0, 0, 1), 3), math.radians(-90), math.radians(0)),  # 17
    Part.LineSegment(V(15.5, -18.5, 0), V(11.8, -18.5, 0)),  # 18
    Part.LineSegment(V(11.8, -18.5, 0), V(11.8, -11.8, 0)),  # 19
], False)
sketch2.addConstraint([
    Sketcher.Constraint("Coincident", 0, 2, 1, 1),
    Sketcher.Constraint("Tangent", 1, 2, 2, 2),
    Sketcher.Constraint("Tangent", 2, 1, 3, 1),
    Sketcher.Constraint("Coincident", 3, 2, 4, 1),
    Sketcher.Constraint("Coincident", 4, 2, 0, 1),
    Sketcher.Constraint("Coincident", 5, 2, 6, 1),
    Sketcher.Constraint("Tangent", 6, 2, 7, 2),
    Sketcher.Constraint("Tangent", 7, 1, 8, 1),
    Sketcher.Constraint("Coincident", 8, 2, 9, 1),
    Sketcher.Constraint("Coincident", 9, 2, 5, 1),
    Sketcher.Constraint("Coincident", 10, 2, 11, 1),
    Sketcher.Constraint("Tangent", 11, 2, 12, 2),
    Sketcher.Constraint("Tangent", 12, 1, 13, 1),
    Sketcher.Constraint("Coincident", 13, 2, 14, 1),
    Sketcher.Constraint("Coincident", 14, 2, 10, 1),
    Sketcher.Constraint("Coincident", 15, 2, 16, 1),
    Sketcher.Constraint("Tangent", 16, 2, 17, 2),
    Sketcher.Constraint("Tangent", 17, 1, 18, 1),
    Sketcher.Constraint("Coincident", 18, 2, 19, 1),
    Sketcher.Constraint("Coincident", 19, 2, 15, 1),
    Sketcher.Constraint("Vertical", 0),
    Sketcher.Constraint("Horizontal", 1),
    Sketcher.Constraint("Vertical", 3),
    Sketcher.Constraint("Horizontal", 4),
    Sketcher.Constraint("Horizontal", 5),
    Sketcher.Constraint("Vertical", 6),
    Sketcher.Constraint("Horizontal", 8),
    Sketcher.Constraint("Vertical", 9),
    Sketcher.Constraint("Vertical", 10),
    Sketcher.Constraint("Horizontal", 11),
    Sketcher.Constraint("Vertical", 13),
    Sketcher.Constraint("Horizontal", 14),
    Sketcher.Constraint("Horizontal", 15),
    Sketcher.Constraint("Vertical", 16),
    Sketcher.Constraint("Horizontal", 18),
    Sketcher.Constraint("Vertical", 19),
    Sketcher.Constraint("Equal", 2, 7),
    Sketcher.Constraint("Equal", 7, 12),
    Sketcher.Constraint("Equal", 12, 17),
    Sketcher.Constraint("Symmetric", 2, 3, 12, 3, -1, 1),
    Sketcher.Constraint("Symmetric", 7, 3, 17, 3, -1, 1),
    Sketcher.Constraint("Symmetric", 4, 2, 14, 2, -1, 1),
    Sketcher.Constraint("Symmetric", 9, 2, 19, 2, -1, 1),
    Sketcher.Constraint("Symmetric", 2, 3, 7, 3, -2),
    Sketcher.Constraint("Symmetric", 4, 2, 9, 2, -2),
    Sketcher.Constraint("Equal", 15, 0),
    Sketcher.Constraint("Radius", 2, 3.0),
    Sketcher.Constraint("DistanceX", 7, 3, 2, 3, 31.0),
    Sketcher.Constraint("DistanceY", 12, 3, 7, 3, 31.0),
    Sketcher.Constraint("DistanceX", 1, 1, 1, 2, 3.75),
])
pocket1 = body.newObject("PartDesign::Pocket", "Pocket")
pocket1.Profile = sketch2
pocket1.Length = 3297

doc.recompute()
